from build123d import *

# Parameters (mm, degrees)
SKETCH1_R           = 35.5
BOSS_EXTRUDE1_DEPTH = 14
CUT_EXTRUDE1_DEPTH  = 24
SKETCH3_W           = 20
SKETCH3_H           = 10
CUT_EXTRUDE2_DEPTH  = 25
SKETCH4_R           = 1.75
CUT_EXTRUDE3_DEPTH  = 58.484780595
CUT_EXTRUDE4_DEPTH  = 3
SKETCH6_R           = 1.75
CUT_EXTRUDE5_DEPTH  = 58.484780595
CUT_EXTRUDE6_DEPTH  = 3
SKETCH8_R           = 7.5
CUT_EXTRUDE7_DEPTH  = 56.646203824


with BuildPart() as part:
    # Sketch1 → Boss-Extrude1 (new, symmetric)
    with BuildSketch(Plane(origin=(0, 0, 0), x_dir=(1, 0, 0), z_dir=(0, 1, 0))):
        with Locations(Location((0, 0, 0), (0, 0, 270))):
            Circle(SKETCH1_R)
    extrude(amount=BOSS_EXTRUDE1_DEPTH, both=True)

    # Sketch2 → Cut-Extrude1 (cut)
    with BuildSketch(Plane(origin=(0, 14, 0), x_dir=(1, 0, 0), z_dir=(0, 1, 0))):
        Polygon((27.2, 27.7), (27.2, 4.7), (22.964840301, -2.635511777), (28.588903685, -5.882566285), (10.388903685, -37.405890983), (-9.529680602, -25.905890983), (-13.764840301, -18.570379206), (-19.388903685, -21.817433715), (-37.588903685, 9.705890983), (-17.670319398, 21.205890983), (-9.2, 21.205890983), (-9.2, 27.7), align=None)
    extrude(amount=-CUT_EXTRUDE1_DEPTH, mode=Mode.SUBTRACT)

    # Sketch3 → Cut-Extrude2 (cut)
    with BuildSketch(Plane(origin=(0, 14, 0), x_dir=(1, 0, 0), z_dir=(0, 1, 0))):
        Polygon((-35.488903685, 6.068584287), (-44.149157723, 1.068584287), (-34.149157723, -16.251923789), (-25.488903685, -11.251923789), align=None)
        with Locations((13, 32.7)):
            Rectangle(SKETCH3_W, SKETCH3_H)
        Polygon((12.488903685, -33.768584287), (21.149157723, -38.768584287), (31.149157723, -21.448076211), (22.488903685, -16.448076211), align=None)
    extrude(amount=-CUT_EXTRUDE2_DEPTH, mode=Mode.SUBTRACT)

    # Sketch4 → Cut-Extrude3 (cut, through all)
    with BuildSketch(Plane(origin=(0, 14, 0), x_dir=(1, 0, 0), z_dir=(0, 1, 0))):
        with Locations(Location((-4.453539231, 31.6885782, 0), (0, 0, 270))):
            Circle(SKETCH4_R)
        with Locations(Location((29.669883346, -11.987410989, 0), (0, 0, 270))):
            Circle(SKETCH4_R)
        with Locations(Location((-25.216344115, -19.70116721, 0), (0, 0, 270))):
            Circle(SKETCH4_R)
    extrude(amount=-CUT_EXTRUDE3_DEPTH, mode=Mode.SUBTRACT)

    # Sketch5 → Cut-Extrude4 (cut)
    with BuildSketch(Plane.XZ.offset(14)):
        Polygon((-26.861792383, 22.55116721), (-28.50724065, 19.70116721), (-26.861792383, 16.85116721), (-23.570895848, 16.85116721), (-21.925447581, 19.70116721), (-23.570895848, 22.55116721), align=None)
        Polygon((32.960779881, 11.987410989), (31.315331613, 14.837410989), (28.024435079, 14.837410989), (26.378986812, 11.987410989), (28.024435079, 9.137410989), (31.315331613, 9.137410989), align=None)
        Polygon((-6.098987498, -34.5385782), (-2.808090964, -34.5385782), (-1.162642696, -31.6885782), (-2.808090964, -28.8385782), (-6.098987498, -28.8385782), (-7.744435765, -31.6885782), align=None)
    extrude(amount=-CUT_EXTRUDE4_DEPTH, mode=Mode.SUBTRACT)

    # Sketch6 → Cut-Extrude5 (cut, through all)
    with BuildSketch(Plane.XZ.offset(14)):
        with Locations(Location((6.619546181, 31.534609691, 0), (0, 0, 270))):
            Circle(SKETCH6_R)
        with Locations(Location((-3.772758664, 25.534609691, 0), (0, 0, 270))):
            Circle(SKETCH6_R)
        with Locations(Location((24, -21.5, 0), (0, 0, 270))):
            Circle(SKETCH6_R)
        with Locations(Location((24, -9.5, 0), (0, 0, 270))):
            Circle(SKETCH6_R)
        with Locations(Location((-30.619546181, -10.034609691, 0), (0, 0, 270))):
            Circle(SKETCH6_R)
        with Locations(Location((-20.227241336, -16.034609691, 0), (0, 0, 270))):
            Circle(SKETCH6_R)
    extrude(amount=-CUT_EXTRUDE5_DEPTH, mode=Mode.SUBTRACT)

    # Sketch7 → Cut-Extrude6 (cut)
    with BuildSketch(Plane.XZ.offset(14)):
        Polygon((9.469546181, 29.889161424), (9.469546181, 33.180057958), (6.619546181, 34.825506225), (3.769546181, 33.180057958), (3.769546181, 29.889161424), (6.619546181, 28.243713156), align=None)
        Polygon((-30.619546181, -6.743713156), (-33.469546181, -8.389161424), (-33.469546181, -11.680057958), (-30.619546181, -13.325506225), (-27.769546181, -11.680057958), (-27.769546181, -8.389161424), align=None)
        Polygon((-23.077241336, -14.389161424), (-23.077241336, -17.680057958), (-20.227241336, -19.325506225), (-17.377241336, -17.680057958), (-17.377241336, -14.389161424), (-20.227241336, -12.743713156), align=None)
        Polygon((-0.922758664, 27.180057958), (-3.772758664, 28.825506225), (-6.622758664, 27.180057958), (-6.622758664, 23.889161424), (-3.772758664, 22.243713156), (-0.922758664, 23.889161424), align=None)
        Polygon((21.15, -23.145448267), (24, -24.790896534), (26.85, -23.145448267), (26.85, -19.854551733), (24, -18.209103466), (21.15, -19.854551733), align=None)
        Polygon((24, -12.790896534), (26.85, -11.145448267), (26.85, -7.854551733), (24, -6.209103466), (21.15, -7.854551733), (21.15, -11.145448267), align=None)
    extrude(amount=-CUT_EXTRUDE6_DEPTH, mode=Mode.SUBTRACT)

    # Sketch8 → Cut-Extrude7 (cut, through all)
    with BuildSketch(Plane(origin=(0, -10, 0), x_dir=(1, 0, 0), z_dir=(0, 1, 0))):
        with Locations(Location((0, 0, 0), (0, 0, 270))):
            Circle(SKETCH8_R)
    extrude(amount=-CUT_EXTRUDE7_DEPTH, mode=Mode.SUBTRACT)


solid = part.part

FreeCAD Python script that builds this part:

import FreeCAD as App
import Part
import Sketcher

V = App.Vector
Q = App.Units.Quantity


def add_polygon(sketch, points):
    """Adds a closed chain of lines whose ends are joined by coincident constraints."""
    first, n = sketch.GeometryCount, len(points)
    for a, b in zip(points, points[1:] + points[:1]):
        sketch.addGeometry(Part.LineSegment(App.Vector(*a, 0), App.Vector(*b, 0)), False)
    for i in range(n):
        sketch.addConstraint(Sketcher.Constraint("Coincident", first + i, 2, first + (i + 1) % n, 1))

doc = App.newDocument("Part")
body = doc.addObject("PartDesign::Body", "Body")

sketch1 = doc.addObject("Sketcher::SketchObject", "Sketch")
body.addObject(sketch1)
sketch1.AttachmentSupport = (doc.XZ_Plane, [""])
sketch1.MapMode = "FlatFace"
sketch1.addGeometry(Part.Circle(V(0, 0, 0), V(0, 0, 1), 36), False)
sketch1.addConstraint([
    Sketcher.Constraint("Coincident", 0, 3, -1, 1),
    Sketcher.Constraint("Diameter", 0, Q("71 mm")),
])
pad1 = doc.addObject("PartDesign::Pad", "Pad")
body.addObject(pad1)
pad1.Profile = sketch1
pad1.Length = 28
pad1.Midplane = True

sketch2 = doc.addObject("Sketcher::SketchObject", "Sketch001")
body.addObject(sketch2)
sketch2.AttachmentSupport = (doc.XZ_Plane, [""])
sketch2.MapMode = "FlatFace"
sketch2.AttachmentOffset = App.Placement(V(0, 0, -14), App.Rotation())
add_polygon(sketch2, [(27, -5), (27, -28), (-9, -28), (-9, -21), (-18, -21), (-38, -10), (-19, 22), (-14, 19), (-10, 26), (10, 37), (29, 6), (23, 3)])
sketch2.addConstraint([
    Sketcher.Constraint("Vertical", 0),
    Sketcher.Constraint("Horizontal", 1),
    Sketcher.Constraint("Vertical", 2),
    Sketcher.Constraint("Horizontal", 3),
    Sketcher.Constraint("Perpendicular", 4, 5),
    Sketcher.Constraint("Perpendicular", 5, 6),
    Sketcher.Constraint("Perpendicular", 6, 7),
    Sketcher.Constraint("Perpendicular", 8, 9),
    Sketcher.Constraint("Perpendicular", 9, 10),
    Sketcher.Constraint("Perpendicular", 10, 11),
    Sketcher.Constraint("Equal", 4, 8),
    Sketcher.Constraint("Equal", 5, 9),
    Sketcher.Constraint("Equal", 6, 10),
    Sketcher.Constraint("Equal", 7, 11),
    Sketcher.Constraint("DistanceY", 0, 2, 0, 1, Q("23 mm")),
    Sketcher.Constraint("Angle", 4, Q("150 deg")),
    Sketcher.Constraint("Angle", 8, Q("30 deg")),
    Sketcher.Constraint("Distance", 4, Q("23 mm")),
    Sketcher.Constraint("DistanceX", 1, 2, 1, 1, Q("36.4 mm")),
    Sketcher.Constraint("Distance", 5, Q("36.4 mm")),
    Sketcher.Constraint("DistanceX", -1, 1, 0, 2, Q("27.2 mm")),
    Sketcher.Constraint("DistanceY", 0, 2, -1, 1, Q("27.7 mm")),
    Sketcher.Constraint("DistanceX", 3, 2, 3, 1, Q("8.470319 mm")),
    Sketcher.Constraint("DistanceY", 2, 1, 2, 2, Q("6.494109 mm")),
])
pocket1 = doc.addObject("PartDesign::Pocket", "Pocket")
body.addObject(pocket1)
pocket1.Profile = sketch2
pocket1.Length = 24
pocket1.Reversed = True

sketch3 = doc.addObject("Sketcher::SketchObject", "Sketch002")
body.addObject(sketch3)
sketch3.AttachmentSupport = (doc.XZ_Plane, [""])
sketch3.MapMode = "FlatFace"
sketch3.AttachmentOffset = App.Placement(V(0, 0, -14), App.Rotation())
add_polygon(sketch3, [(-35, -6), (-44, -1), (-34, 16), (-25, 11)])
add_polygon(sketch3, [(3, -38), (3, -28), (23, -28), (23, -38)])
add_polygon(sketch3, [(12, 34), (21, 39), (31, 21), (22, 16)])
sketch3.addConstraint([
    Sketcher.Constraint("Vertical", 4),
    Sketcher.Constraint("Horizontal", 5),
    Sketcher.Constraint("Vertical", 6),
    Sketcher.Constraint("Horizontal", 7),
    Sketcher.Constraint("Perpendicular", 0, 1),
    Sketcher.Constraint("Perpendicular", 1, 2),
    Sketcher.Constraint("Perpendicular", 2, 3),
    Sketcher.Constraint("Perpendicular", 8, 9),
    Sketcher.Constraint("Perpendicular", 9, 10),
    Sketcher.Constraint("Perpendicular", 10, 11),
    Sketcher.Constraint("Equal", 2, 8),
    Sketcher.Constraint("Equal", 3, 9),
    Sketcher.Constraint("DistanceX", 5, 1, 5, 2, Q("20 mm")),
    Sketcher.Constraint("DistanceY", 4, 1, 4, 2, Q("10 mm")),
    Sketcher.Constraint("Angle", 0, Q("150 deg")),
    Sketcher.Constraint("Angle", 8, Q("30 deg")),
    Sketcher.Constraint("Distance", 0, Q("10 mm")),
    Sketcher.Constraint("Distance", 1, Q("20 mm")),
    Sketcher.Constraint("DistanceX", -1, 1, 4, 2, Q("3 mm")),
    Sketcher.Constraint("DistanceY", 4, 2, -1, 1, Q("27.7 mm")),
    Sketcher.Constraint("DistanceX", 2, 2, 8, 2, Q("46.638061 mm")),
    Sketcher.Constraint("DistanceY", 2, 2, 8, 2, Q("27.51666 mm")),
    Sketcher.Constraint("DistanceX", 0, 2, -1, 1, Q("44.149158 mm")),
    Sketcher.Constraint("DistanceY", 0, 2, -1, 1, Q("1.068584 mm")),
])
pocket2 = doc.addObject("PartDesign::Pocket", "Pocket001")
body.addObject(pocket2)
pocket2.Profile = sketch3
pocket2.Length = 25
pocket2.Reversed = True

sketch4 = doc.addObject("Sketcher::SketchObject", "Sketch003")
body.addObject(sketch4)
sketch4.AttachmentSupport = (doc.XZ_Plane, [""])
sketch4.MapMode = "FlatFace"
sketch4.AttachmentOffset = App.Placement(V(0, 0, -14), App.Rotation())
sketch4.addGeometry([
    Part.Circle(V(-4.5, -31.7, 0), V(0, 0, 1), 1.8),
    Part.Circle(V(29.7, 12, 0), V(0, 0, 1), 1.8),
    Part.Circle(V(-25.2, 19.7, 0), V(0, 0, 1), 1.8),
], False)
sketch4.addConstraint([
    Sketcher.Constraint("Equal", 0, 1),
    Sketcher.Constraint("Equal", 1, 2),
    Sketcher.Constraint("Diameter", 0, Q("3.5 mm")),
    Sketcher.Constraint("DistanceX", 0, 3, -1, 1, Q("4.453539 mm")),
    Sketcher.Constraint("DistanceY", 0, 3, -1, 1, Q("31.688578 mm")),
    Sketcher.Constraint("DistanceY", -1, 1, 1, 3, Q("11.987411 mm")),
    Sketcher.Constraint("DistanceX", -1, 1, 1, 3, Q("29.669883 mm")),
    Sketcher.Constraint("DistanceX", 2, 3, -1, 1, Q("25.216344 mm")),
    Sketcher.Constraint("DistanceY", -1, 1, 2, 3, Q("19.701167 mm")),
])
pocket3 = doc.addObject("PartDesign::Pocket", "Pocket002")
body.addObject(pocket3)
pocket3.Profile = sketch4
pocket3.Type = "ThroughAll"
pocket3.Reversed = True

sketch5 = doc.addObject("Sketcher::SketchObject", "Sketch004")
body.addObject(sketch5)
sketch5.AttachmentSupport = (doc.XZ_Plane, [""])
sketch5.MapMode = "FlatFace"
sketch5.AttachmentOffset = App.Placement(V(0, 0, 14), App.Rotation())
add_polygon(sketch5, [(-26.9, 22.6), (-28.5, 19.7), (-26.9, 16.9), (-23.6, 16.9), (-21.9, 19.7), (-23.6, 22.6)])
add_polygon(sketch5, [(33, 12), (31.3, 14.8), (28, 14.8), (26.4, 12), (28, 9.1), (31.3, 9.1)])
add_polygon(sketch5, [(-6.1, -34.5), (-2.8, -34.5), (-1.2, -31.7), (-2.8, -28.8), (-6.1, -28.8), (-7.7, -31.7)])
sketch5.addConstraint([
    Sketcher.Constraint("Horizontal", 2),
    Sketcher.Constraint("Horizontal", 5),
    Sketcher.Constraint("Horizontal", 7),
    Sketcher.Constraint("Horizontal", 10),
    Sketcher.Constraint("Horizontal", 12),
    Sketcher.Constraint("Horizontal", 15),
    Sketcher.Constraint("Parallel", 0, 3),
    Sketcher.Constraint("Parallel", 1, 4),
    Sketcher.Constraint("Parallel", 4, 6),
    Sketcher.Constraint("Parallel", 3, 8),
    Sketcher.Constraint("Parallel", 6, 9),
    Sketcher.Constraint("Parallel", 8, 11),
    Sketcher.Constraint("Parallel", 11, 13),
    Sketcher.Constraint("Parallel", 9, 14),
    Sketcher.Constraint("Parallel", 13, 16),
    Sketcher.Constraint("Parallel", 14, 17),
    Sketcher.Constraint("Horizontal", 0, 2, 3, 2),
    Sketcher.Constraint("Horizontal", 8, 2, 11, 2),
    Sketcher.Constraint("Horizontal", 13, 2, 16, 2),
    Sketcher.Constraint("Vertical", 2, 2, 4, 2),
    Sketcher.Constraint("Vertical", 1, 2, 5, 2),
    Sketcher.Constraint("Vertical", 7, 2, 9, 2),
    Sketcher.Constraint("Vertical", 12, 2, 14, 2),
    Sketcher.Constraint("Equal", 5, 7),
    Sketcher.Constraint("Equal", 10, 12),
    Sketcher.Constraint("Equal", 4, 6),
    Sketcher.Constraint("Equal", 11, 13),
    Sketcher.Constraint("Angle", 0, Q("-120 deg")),
    Sketcher.Constraint("DistanceY", 2, 2, 4, 2, Q("5.7 mm")),
    Sketcher.Constraint("DistanceX", 1, 2, 12, 2, Q("24.053701 mm")),
    Sketcher.Constraint("DistanceX", 2, 1, 2, 2, Q("3.290897 mm")),
    Sketcher.Constraint("DistanceX", 0, 2, -1, 1, Q("28.507241 mm")),
    Sketcher.Constraint("DistanceX", -1, 1, 6, 2, Q("31.315332 mm")),
    Sketcher.Constraint("DistanceY", -1, 1, 6, 2, Q("14.837411 mm")),
    Sketcher.Constraint("DistanceY", 12, 2, -1, 1, Q("34.538578 mm")),
    Sketcher.Constraint("DistanceY", -1, 1, 0, 2, Q("19.701167 mm")),
])
pocket4 = doc.addObject("PartDesign::Pocket", "Pocket003")
body.addObject(pocket4)
pocket4.Profile = sketch5
pocket4.Length = 3

sketch6 = doc.addObject("Sketcher::SketchObject", "Sketch005")
body.addObject(sketch6)
sketch6.AttachmentSupport = (doc.XZ_Plane, [""])
sketch6.MapMode = "FlatFace"
sketch6.AttachmentOffset = App.Placement(V(0, 0, 14), App.Rotation())
sketch6.addGeometry([
    Part.Circle(V(6.6, 31.5, 0), V(0, 0, 1), 1.8),
    Part.Circle(V(-3.8, 25.5, 0), V(0, 0, 1), 1.8),
    Part.Circle(V(24, -21.5, 0), V(0, 0, 1), 1.8),
    Part.Circle(V(24, -9.5, 0), V(0, 0, 1), 1.8),
    Part.Circle(V(-30.6, -10, 0), V(0, 0, 1), 1.8),
    Part.Circle(V(-20.2, -16, 0), V(0, 0, 1), 1.8),
], False)
sketch6.addConstraint([
    Sketcher.Constraint("Equal", 0, 1),
    Sketcher.Constraint("Equal", 1, 2),
    Sketcher.Constraint("Equal", 2, 3),
    Sketcher.Constraint("Equal", 3, 4),
    Sketcher.Constraint("Equal", 4, 5),
    Sketcher.Constraint("Vertical", 2, 3, 3, 3),
    Sketcher.Constraint("Diameter", 0, Q("3.5 mm")),
    Sketcher.Constraint("DistanceX", -1, 1, 2, 3, Q("24 mm")),
    Sketcher.Constraint("DistanceY", 1, 3, 0, 3, Q("6 mm")),
    Sketcher.Constraint("DistanceY", 2, 3, 3, 3, Q("12 mm")),
    Sketcher.Constraint("DistanceY", 5, 3, 4, 3, Q("6 mm")),
    Sketcher.Constraint("DistanceY", 2, 3, -1, 1, Q("21.5 mm")),
    Sketcher.Constraint("DistanceY", -1, 1, 0, 3, Q("31.53461 mm")),
    Sketcher.Constraint("DistanceX", 1, 3, -1, 1, Q("3.772759 mm")),
    Sketcher.Constraint("DistanceY", 4, 3, -1, 1, Q("10.03461 mm")),
    Sketcher.Constraint("DistanceX", 5, 3, -1, 1, Q("20.227241 mm")),
    Sketcher.Constraint("DistanceX", -1, 1, 0, 3, Q("6.619546 mm")),
    Sketcher.Constraint("DistanceX", 4, 3, -1, 1, Q("30.619546 mm")),
])
pocket5 = doc.addObject("PartDesign::Pocket", "Pocket004")
body.addObject(pocket5)
pocket5.Profile = sketch6
pocket5.Type = "ThroughAll"

sketch7 = doc.addObject("Sketcher::SketchObject", "Sketch006")
body.addObject(sketch7)
sketch7.AttachmentSupport = (doc.XZ_Plane, [""])
sketch7.MapMode = "FlatFace"
sketch7.AttachmentOffset = App.Placement(V(0, 0, 14), App.Rotation())
add_polygon(sketch7, [(9.5, 29.9), (9.5, 33.2), (6.6, 34.8), (3.8, 33.2), (3.8, 29.9), (6.6, 28.2)])
add_polygon(sketch7, [(-30.6, -6.7), (-33.5, -8.4), (-33.5, -11.7), (-30.6, -13.3), (-27.8, -11.7), (-27.8, -8.4)])
add_polygon(sketch7, [(-23.1, -14.4), (-23.1, -17.7), (-20.2, -19.3), (-17.4, -17.7), (-17.4, -14.4), (-20.2, -12.7)])
add_polygon(sketch7, [(-0.9, 27.2), (-3.8, 28.8), (-6.6, 27.2), (-6.6, 23.9), (-3.8, 22.2), (-0.9, 23.9)])
add_polygon(sketch7, [(21.1, -23.1), (24, -24.8), (26.9, -23.1), (26.9, -19.9), (24, -18.2), (21.1, -19.9)])
add_polygon(sketch7, [(24, -12.8), (26.9, -11.1), (26.9, -7.9), (24, -6.2), (21.1, -7.9), (21.1, -11.1)])
sketch7.addConstraint([
    Sketcher.Constraint("Vertical", 0),
    Sketcher.Constraint("Vertical", 3),
    Sketcher.Constraint("Vertical", 7),
    Sketcher.Constraint("Vertical", 10),
    Sketcher.Constraint("Vertical", 12),
    Sketcher.Constraint("Vertical", 15),
    Sketcher.Constraint("Vertical", 20),
    Sketcher.Constraint("Vertical", 23),
    Sketcher.Constraint("Vertical", 26),
    Sketcher.Constraint("Vertical", 29),
    Sketcher.Constraint("Vertical", 31),
    Sketcher.Constraint("Vertical", 34),
    Sketcher.Constraint("Parallel", 1, 4),
    Sketcher.Constraint("Parallel", 2, 5),
    Sketcher.Constraint("Parallel", 5, 6),
    Sketcher.Constraint("Parallel", 4, 8),
    Sketcher.Constraint("Parallel", 6, 9),
    Sketcher.Constraint("Parallel", 8, 11),
    Sketcher.Constraint("Parallel", 11, 13),
    Sketcher.Constraint("Parallel", 9, 14),
    Sketcher.Constraint("Parallel", 13, 16),
    Sketcher.Constraint("Parallel", 14, 17),
    Sketcher.Constraint("Parallel", 16, 18),
    Sketcher.Constraint("Parallel", 17, 19),
    Sketcher.Constraint("Parallel", 18, 21),
    Sketcher.Constraint("Parallel", 19, 22),
    Sketcher.Constraint("Parallel", 21, 24),
    Sketcher.Constraint("Parallel", 22, 25),
    Sketcher.Constraint("Parallel", 24, 27),
    Sketcher.Constraint("Parallel", 25, 28),
    Sketcher.Constraint("Parallel", 28, 30),
    Sketcher.Constraint("Parallel", 27, 32),
    Sketcher.Constraint("Parallel", 30, 33),
    Sketcher.Constraint("Parallel", 32, 35),
    Sketcher.Constraint("Horizontal", 0, 2, 2, 2),
    Sketcher.Constraint("Horizontal", 3, 2, 5, 2),
    Sketcher.Constraint("Horizontal", 7, 2, 9, 2),
    Sketcher.Constraint("Horizontal", 6, 2, 10, 2),
    Sketcher.Constraint("Horizontal", 12, 2, 14, 2),
    Sketcher.Constraint("Horizontal", 15, 2, 17, 2),
    Sketcher.Constraint("Horizontal", 20, 2, 22, 2),
    Sketcher.Constraint("Horizontal", 19, 2, 23, 2),
    Sketcher.Constraint("Horizontal", 26, 2, 28, 2),
    Sketcher.Constraint("Horizontal", 25, 2, 29, 2),
    Sketcher.Constraint("Horizontal", 31, 2, 33, 2),
    Sketcher.Constraint("Horizontal", 30, 2, 34, 2),
    Sketcher.Constraint("Vertical", 1, 2, 4, 2),
    Sketcher.Constraint("Vertical", 26, 2, 30, 2),
    Sketcher.Constraint("Vertical", 27, 2, 32, 2),
    Sketcher.Constraint("Equal", 3, 7),
    Sketcher.Constraint("Equal", 10, 12),
    Sketcher.Constraint("Equal", 15, 20),
    Sketcher.Constraint("Equal", 23, 26),
    Sketcher.Constraint("Equal", 29, 31),
    Sketcher.Constraint("Equal", 5, 6),
    Sketcher.Constraint("Equal", 11, 13),
    Sketcher.Constraint("Equal", 17, 18),
    Sketcher.Constraint("Equal", 22, 24),
    Sketcher.Constraint("Angle", 1, Q("150 deg")),
    Sketcher.Constraint("DistanceX", -1, 1, 24, 2, Q("24 mm")),
    Sketcher.Constraint("DistanceY", 12, 2, 9, 2, Q("6 mm")),
    Sketcher.Constraint("DistanceY", 18, 2, 1, 2, Q("6 mm")),
    Sketcher.Constraint("DistanceY", 25, 2, 30, 2, Q("12 mm")),
    Sketcher.Constraint("DistanceX", 2, 2, 0, 2, Q("5.7 mm")),
    Sketcher.Constraint("DistanceY", 0, 1, 0, 2, Q("3.290897 mm")),
    Sketcher.Constraint("DistanceY", -1, 1, 3, 2, Q("29.889161 mm")),
    Sketcher.Constraint("DistanceY", 6, 2, -1, 1, Q("8.389161 mm")),
    Sketcher.Constraint("DistanceX", 12, 2, -1, 1, Q("23.077241 mm")),
    Sketcher.Constraint("DistanceX", 18, 2, -1, 1, Q("3.772759 mm")),
    Sketcher.Constraint("DistanceY", 25, 2, -1, 1, Q("23.145448 mm")),
    Sketcher.Constraint("DistanceX", -1, 1, 0, 2, Q("9.469546 mm")),
    Sketcher.Constraint("DistanceX", 6, 2, -1, 1, Q("33.469546 mm")),
])
pocket6 = doc.addObject("PartDesign::Pocket", "Pocket005")
body.addObject(pocket6)
pocket6.Profile = sketch7
pocket6.Length = 3

sketch8 = doc.addObject("Sketcher::SketchObject", "Sketch007")
body.addObject(sketch8)
sketch8.AttachmentSupport = (doc.XZ_Plane, [""])
sketch8.MapMode = "FlatFace"
sketch8.AttachmentOffset = App.Placement(V(0, 0, 10), App.Rotation())
sketch8.addGeometry(Part.Circle(V(0, 0, 0), V(0, 0, 1), 8), False)
sketch8.addConstraint([
    Sketcher.Constraint("Coincident", 0, 3, -1, 1),
    Sketcher.Constraint("Diameter", 0, Q("15 mm")),
])
pocket7 = doc.addObject("PartDesign::Pocket", "Pocket006")
body.addObject(pocket7)
pocket7.Profile = sketch8
pocket7.Type = "ThroughAll"
pocket7.Reversed = True

doc.recompute()
